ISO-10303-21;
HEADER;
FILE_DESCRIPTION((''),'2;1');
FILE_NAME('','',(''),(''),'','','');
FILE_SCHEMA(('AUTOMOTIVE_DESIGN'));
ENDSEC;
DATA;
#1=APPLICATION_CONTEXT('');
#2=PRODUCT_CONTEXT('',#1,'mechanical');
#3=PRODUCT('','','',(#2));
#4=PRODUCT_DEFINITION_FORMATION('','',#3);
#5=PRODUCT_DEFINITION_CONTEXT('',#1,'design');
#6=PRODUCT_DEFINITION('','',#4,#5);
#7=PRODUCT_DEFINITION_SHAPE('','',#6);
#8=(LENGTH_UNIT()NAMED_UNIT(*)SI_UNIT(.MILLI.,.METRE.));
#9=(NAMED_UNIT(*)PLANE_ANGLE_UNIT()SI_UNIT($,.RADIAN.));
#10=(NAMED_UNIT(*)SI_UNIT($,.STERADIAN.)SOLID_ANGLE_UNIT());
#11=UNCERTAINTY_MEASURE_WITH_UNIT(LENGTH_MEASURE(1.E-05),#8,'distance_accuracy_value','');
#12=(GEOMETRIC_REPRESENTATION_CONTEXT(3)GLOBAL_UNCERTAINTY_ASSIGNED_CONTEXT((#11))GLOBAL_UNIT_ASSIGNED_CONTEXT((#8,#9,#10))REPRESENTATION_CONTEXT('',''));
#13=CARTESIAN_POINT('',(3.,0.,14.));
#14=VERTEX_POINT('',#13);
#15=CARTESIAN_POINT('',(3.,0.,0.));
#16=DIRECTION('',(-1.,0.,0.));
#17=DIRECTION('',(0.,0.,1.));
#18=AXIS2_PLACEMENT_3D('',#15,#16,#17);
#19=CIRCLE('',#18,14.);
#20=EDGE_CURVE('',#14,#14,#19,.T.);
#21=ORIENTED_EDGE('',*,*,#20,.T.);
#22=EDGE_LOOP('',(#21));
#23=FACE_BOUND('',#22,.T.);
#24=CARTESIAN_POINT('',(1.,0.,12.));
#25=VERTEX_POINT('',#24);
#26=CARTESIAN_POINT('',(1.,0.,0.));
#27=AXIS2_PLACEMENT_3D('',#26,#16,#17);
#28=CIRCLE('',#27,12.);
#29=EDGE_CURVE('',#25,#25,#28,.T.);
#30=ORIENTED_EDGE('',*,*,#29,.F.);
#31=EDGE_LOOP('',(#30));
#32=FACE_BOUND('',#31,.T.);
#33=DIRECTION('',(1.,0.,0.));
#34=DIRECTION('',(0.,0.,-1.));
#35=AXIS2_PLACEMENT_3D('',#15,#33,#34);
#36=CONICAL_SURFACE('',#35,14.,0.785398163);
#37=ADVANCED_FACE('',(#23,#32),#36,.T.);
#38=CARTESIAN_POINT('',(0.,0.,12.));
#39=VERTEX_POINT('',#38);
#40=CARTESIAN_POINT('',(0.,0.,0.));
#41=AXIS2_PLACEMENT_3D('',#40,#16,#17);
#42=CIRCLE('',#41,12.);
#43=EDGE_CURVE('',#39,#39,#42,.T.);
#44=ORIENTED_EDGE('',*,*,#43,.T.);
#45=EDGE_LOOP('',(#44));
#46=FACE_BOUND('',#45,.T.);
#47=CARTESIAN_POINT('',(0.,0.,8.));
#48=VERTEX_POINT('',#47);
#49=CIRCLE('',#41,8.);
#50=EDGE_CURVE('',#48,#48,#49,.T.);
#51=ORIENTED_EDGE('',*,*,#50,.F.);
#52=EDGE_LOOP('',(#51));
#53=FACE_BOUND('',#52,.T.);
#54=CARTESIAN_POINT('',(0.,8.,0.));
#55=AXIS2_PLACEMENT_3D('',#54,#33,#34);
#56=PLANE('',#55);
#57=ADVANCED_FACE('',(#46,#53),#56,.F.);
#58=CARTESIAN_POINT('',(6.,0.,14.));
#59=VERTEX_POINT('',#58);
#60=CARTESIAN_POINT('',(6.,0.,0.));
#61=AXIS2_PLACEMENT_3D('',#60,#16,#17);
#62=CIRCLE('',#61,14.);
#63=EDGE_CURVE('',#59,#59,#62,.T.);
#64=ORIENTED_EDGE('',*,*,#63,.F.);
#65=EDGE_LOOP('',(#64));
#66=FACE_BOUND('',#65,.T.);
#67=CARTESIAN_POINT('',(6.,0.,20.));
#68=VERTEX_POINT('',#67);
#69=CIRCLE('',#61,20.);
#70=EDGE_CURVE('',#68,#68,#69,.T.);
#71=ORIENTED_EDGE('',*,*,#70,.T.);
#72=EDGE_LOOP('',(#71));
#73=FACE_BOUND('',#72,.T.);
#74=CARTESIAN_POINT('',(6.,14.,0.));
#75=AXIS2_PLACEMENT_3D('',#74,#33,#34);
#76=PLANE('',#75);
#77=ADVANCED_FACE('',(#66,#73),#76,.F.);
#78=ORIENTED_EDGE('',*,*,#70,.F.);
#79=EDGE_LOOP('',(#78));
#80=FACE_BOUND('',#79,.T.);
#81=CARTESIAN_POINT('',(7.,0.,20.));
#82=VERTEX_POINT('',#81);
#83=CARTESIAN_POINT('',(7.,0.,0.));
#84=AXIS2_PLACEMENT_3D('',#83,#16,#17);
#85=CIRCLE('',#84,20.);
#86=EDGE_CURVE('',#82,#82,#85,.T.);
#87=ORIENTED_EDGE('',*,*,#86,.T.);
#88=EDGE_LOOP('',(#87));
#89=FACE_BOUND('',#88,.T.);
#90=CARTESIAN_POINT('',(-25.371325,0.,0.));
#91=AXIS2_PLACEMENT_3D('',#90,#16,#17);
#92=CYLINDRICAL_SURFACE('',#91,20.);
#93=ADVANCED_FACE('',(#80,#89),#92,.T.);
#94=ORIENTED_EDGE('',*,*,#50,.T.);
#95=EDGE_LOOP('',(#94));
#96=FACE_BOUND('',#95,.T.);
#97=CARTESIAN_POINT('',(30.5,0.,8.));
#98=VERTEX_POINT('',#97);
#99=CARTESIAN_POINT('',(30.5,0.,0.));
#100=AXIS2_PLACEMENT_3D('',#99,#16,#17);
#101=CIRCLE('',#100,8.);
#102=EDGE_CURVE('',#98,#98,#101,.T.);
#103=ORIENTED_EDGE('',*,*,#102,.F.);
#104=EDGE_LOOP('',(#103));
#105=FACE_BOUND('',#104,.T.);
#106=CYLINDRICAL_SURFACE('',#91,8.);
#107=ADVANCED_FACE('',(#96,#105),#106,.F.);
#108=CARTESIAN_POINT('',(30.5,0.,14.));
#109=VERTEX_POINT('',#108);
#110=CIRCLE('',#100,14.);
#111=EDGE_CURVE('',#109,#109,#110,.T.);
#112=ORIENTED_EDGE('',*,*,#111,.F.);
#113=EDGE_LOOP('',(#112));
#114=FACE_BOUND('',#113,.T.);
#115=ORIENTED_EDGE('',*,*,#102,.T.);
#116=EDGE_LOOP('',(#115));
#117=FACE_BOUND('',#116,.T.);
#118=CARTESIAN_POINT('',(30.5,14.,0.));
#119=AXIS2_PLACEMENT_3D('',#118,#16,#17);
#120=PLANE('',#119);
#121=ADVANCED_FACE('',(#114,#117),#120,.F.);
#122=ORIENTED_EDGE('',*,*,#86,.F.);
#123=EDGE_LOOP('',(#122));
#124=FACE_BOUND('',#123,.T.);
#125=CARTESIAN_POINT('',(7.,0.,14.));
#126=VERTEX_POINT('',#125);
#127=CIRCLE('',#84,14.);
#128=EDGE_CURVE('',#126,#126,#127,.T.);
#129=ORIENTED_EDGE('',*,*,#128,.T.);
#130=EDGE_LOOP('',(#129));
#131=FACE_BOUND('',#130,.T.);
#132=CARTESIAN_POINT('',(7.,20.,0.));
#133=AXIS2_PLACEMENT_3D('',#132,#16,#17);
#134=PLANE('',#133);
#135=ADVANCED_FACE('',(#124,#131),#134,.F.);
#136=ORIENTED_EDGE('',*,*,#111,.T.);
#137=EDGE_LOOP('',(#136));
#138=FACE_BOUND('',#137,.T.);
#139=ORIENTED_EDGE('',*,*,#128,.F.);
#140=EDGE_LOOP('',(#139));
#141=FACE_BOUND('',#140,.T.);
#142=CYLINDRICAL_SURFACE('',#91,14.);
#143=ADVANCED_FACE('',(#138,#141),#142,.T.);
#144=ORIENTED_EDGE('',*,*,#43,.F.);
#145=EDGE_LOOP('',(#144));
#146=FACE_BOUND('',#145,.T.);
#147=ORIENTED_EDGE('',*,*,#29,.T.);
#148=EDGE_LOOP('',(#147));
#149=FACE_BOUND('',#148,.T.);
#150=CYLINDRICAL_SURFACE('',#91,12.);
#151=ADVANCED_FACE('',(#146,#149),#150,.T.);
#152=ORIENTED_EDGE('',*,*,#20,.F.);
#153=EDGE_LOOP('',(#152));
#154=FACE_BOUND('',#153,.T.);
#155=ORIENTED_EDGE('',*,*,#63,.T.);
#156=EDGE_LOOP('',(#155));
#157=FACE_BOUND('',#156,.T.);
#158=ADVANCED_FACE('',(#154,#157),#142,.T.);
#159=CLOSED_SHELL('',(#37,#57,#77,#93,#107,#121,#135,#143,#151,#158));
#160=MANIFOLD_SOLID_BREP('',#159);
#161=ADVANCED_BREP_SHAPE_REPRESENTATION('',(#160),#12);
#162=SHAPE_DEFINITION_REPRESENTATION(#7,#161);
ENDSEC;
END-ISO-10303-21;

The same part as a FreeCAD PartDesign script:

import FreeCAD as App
import Part
import Sketcher

V = App.Vector
Q = App.Units.Quantity


def add_polygon(sketch, points):
    """Adds a closed chain of lines whose ends are joined by coincident constraints."""
    first, n = sketch.GeometryCount, len(points)
    for a, b in zip(points, points[1:] + points[:1]):
        sketch.addGeometry(Part.LineSegment(App.Vector(*a, 0), App.Vector(*b, 0)), False)
    for i in range(n):
        sketch.addConstraint(Sketcher.Constraint("Coincident", first + i, 2, first + (i + 1) % n, 1))

doc = App.newDocument("Part")
params = doc.addObject("Spreadsheet::Sheet", "Params")
for row, (alias, value) in enumerate([
    ("sketch1_width", "1 mm"),
    ("sketch1_width2", "3 mm"),
    ("sketch1_height", "4 mm"),
    ("sketch1_height2", "6 mm"),
    ("sketch1_width3", "30.5 mm"),
    ("revolution_angle", "360 deg"),
], start=1):
    params.set(f"A{row}", alias)
    params.set(f"B{row}", "=" + value)
    params.setAlias(f"B{row}", alias)

body = doc.addObject("PartDesign::Body", "Body")

# Sketch on XY plane
sketch1 = body.newObject("Sketcher::SketchObject", "Sketch")
sketch1.AttachmentSupport = (doc.getObject("XY_Plane"), [""])
sketch1.MapMode = "FlatFace"
add_polygon(sketch1, [(0, 12), (0, 8), (30.5, 8), (30.5, 14), (7, 14), (7, 20), (6, 20), (6, 14), (3, 14), (1, 12)])  # lines 0-9
sketch1.addConstraint(Sketcher.Constraint("Vertical", 0))
sketch1.addConstraint(Sketcher.Constraint("Horizontal", 1))
sketch1.addConstraint(Sketcher.Constraint("Vertical", 2))
sketch1.addConstraint(Sketcher.Constraint("Horizontal", 3))
sketch1.addConstraint(Sketcher.Constraint("Vertical", 4))
sketch1.addConstraint(Sketcher.Constraint("Horizontal", 5))
sketch1.addConstraint(Sketcher.Constraint("Vertical", 6))
sketch1.addConstraint(Sketcher.Constraint("Horizontal", 7))
sketch1.addConstraint(Sketcher.Constraint("Horizontal", 9))
sketch1.addConstraint(Sketcher.Constraint("PointOnObject", 0, 2, -2))
sketch1.addConstraint(Sketcher.Constraint("Horizontal", 3, 2, 6, 2))
sketch1.addConstraint(Sketcher.Constraint("Equal", 5, 9))
sketch1.addConstraint(Sketcher.Constraint("Equal", 2, 4))
sketch1.addConstraint(Sketcher.Constraint("DistanceX", 5, 2, 5, 1, 1.0))
sketch1.addConstraint(Sketcher.Constraint("DistanceX", 7, 2, 7, 1, 3.0))
sketch1.addConstraint(Sketcher.Constraint("DistanceY", 0, 2, 0, 1, 4.0))
sketch1.addConstraint(Sketcher.Constraint("DistanceY", 2, 1, 2, 2, 6.0))
sketch1.addConstraint(Sketcher.Constraint("Angle", 8, Q("-135 deg")))
sketch1.addConstraint(Sketcher.Constraint("DistanceX", 1, 1, 1, 2, 30.5))
sketch1.addConstraint(Sketcher.Constraint("DistanceY", -1, 1, 0, 2, 8.0))
sketch1.setExpression("Constraints[23]", "Params.sketch1_width")
sketch1.setExpression("Constraints[24]", "Params.sketch1_width2")
sketch1.setExpression("Constraints[25]", "Params.sketch1_height")
sketch1.setExpression("Constraints[26]", "Params.sketch1_height2")
sketch1.setExpression("Constraints[28]", "Params.sketch1_width3")
revolution = body.newObject("PartDesign::Revolution", "Revolution")
revolution.Profile = sketch1
revolution.ReferenceAxis = (sketch1, ["H_Axis"])
revolution.setExpression("Angle", "Params.revolution_angle")

doc.recompute()
